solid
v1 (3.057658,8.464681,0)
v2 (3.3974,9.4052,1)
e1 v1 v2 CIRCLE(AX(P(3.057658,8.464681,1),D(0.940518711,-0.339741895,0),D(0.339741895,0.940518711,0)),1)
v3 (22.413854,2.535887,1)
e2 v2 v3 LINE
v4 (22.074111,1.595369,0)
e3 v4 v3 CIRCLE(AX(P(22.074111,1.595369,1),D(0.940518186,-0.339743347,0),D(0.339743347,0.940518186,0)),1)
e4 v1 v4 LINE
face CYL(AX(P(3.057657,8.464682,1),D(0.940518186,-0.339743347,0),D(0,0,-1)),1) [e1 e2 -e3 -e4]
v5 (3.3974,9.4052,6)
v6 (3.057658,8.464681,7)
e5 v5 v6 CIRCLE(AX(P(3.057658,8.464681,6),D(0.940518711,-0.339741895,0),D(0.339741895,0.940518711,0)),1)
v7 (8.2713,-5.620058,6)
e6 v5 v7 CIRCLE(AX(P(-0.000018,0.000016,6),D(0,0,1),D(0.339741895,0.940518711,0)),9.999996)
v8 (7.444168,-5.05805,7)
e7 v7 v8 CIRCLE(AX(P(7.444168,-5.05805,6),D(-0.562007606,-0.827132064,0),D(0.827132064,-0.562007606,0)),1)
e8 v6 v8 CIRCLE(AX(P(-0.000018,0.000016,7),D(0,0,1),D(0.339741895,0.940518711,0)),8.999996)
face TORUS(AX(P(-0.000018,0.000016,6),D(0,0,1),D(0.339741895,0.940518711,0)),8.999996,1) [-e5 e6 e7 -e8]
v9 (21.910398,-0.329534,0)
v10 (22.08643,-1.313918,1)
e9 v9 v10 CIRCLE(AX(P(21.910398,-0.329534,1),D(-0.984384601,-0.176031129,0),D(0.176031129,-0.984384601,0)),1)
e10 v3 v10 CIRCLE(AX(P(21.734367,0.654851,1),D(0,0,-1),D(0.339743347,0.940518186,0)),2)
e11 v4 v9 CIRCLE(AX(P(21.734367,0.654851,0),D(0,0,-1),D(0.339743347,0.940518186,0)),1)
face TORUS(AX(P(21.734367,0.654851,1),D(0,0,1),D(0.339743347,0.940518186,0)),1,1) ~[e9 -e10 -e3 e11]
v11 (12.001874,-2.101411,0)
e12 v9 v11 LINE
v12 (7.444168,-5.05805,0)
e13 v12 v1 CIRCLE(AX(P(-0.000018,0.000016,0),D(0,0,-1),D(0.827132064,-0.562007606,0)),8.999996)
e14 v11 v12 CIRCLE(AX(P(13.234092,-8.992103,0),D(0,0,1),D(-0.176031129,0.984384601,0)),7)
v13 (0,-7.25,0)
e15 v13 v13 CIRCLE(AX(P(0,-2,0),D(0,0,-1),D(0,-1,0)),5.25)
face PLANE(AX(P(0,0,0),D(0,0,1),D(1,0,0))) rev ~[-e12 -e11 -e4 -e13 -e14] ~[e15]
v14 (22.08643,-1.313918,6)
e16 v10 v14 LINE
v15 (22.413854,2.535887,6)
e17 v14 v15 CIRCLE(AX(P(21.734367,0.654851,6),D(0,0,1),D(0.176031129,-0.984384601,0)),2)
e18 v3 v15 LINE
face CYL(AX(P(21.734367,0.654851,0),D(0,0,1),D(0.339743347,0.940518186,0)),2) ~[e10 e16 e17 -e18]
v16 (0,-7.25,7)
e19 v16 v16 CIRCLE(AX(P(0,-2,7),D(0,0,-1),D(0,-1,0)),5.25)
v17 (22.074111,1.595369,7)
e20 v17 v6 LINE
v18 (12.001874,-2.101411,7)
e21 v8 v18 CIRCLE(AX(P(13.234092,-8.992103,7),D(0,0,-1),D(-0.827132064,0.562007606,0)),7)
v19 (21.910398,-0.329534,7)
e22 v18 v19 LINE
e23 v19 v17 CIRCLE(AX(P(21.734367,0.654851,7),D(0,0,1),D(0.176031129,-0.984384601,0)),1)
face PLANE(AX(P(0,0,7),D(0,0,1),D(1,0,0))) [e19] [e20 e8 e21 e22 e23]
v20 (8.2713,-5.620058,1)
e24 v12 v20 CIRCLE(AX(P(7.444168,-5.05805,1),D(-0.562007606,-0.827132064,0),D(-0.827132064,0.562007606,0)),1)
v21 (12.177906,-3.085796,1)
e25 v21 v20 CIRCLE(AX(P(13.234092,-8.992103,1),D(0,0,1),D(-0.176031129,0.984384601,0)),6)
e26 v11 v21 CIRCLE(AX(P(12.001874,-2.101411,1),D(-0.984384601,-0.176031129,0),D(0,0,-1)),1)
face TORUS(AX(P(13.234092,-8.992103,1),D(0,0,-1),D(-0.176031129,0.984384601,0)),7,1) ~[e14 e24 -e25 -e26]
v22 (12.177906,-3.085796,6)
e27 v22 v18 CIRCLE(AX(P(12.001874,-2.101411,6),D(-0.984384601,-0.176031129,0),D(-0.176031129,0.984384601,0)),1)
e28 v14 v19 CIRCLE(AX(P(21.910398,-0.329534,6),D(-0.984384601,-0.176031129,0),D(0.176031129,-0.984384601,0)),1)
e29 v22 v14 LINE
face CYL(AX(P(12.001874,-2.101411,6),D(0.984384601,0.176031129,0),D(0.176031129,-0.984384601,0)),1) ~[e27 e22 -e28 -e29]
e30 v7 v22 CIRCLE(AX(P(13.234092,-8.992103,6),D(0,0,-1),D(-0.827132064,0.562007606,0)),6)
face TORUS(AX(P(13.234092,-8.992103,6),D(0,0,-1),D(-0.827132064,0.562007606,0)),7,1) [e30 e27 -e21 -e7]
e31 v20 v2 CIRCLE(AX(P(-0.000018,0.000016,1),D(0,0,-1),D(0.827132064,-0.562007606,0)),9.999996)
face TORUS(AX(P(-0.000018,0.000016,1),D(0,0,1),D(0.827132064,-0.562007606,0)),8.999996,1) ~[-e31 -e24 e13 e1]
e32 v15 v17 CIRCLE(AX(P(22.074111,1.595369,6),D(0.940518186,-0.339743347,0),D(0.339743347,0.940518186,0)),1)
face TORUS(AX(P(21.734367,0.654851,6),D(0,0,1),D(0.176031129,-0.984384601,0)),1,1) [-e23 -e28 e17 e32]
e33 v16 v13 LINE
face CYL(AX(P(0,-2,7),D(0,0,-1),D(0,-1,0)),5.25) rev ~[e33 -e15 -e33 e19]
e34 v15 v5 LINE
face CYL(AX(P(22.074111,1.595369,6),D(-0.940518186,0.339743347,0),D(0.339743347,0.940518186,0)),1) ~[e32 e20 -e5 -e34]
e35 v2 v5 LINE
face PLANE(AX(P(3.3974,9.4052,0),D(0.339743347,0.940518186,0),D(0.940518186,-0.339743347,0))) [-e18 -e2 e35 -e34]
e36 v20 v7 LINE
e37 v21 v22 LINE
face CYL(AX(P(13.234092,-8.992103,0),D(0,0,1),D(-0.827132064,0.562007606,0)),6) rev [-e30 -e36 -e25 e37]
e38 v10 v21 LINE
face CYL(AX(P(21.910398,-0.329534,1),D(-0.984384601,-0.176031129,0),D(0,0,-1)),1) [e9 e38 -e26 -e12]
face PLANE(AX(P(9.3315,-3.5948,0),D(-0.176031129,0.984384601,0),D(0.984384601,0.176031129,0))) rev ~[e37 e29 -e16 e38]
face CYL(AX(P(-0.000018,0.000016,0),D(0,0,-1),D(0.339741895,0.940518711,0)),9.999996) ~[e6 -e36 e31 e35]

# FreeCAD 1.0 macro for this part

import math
import FreeCAD as App
import Part
import Sketcher

V = App.Vector
Q = App.Units.Quantity


def edges_at(feature, points):
    """Names of the edges that pass closest to the given points."""
    edges = feature.Shape.Edges
    near = lambda p: min(range(len(edges)), key=lambda i: edges[i].distToShape(Part.Vertex(*p))[0])
    return sorted({f"Edge{near(p) + 1}" for p in points})

doc = App.newDocument("Part")
body = doc.addObject("PartDesign::Body", "Body")

sketch1 = doc.addObject("Sketcher::SketchObject", "Sketch")
body.addObject(sketch1)
sketch1.AttachmentSupport = (doc.XY_Plane, [""])
sketch1.MapMode = "FlatFace"
sketch1.addGeometry(Part.LineSegment(V(29, 0, 0), V(3, 9, 0)), False)
sketch1.addGeometry(Part.ArcOfCircle(Part.Circle(V(0, 0, 0), V(0, 0, 1), 10), math.radians(70), math.radians(339)), False)
sketch1.addGeometry(Part.LineSegment(V(9, -4, 0), V(29, 0, 0)), False)
sketch1.addConstraint(Sketcher.Constraint("Tangent", 0, 2, 1, 1))
sketch1.addConstraint(Sketcher.Constraint("Coincident", 1, 2, 2, 1))
sketch1.addConstraint(Sketcher.Constraint("Coincident", 2, 2, 0, 1))
sketch1.addConstraint(Sketcher.Constraint("Coincident", 1, 3, -1, 1))
sketch1.addConstraint(Sketcher.Constraint("PointOnObject", 2, 2, -1))
sketch1.addConstraint(Sketcher.Constraint("Radius", 1, Q("10 mm")))
sketch1.addConstraint(Sketcher.Constraint("DistanceY", 1, 2, 0, 2, Q("13 mm")))
sketch1.addConstraint(Sketcher.Constraint("DistanceX", -1, 1, 2, 2, Q("29.434 mm")))
pad1 = doc.addObject("PartDesign::Pad", "Pad")
body.addObject(pad1)
pad1.Profile = sketch1
pad1.Length = 7

sketch2 = doc.addObject("Sketcher::SketchObject", "Sketch001")
body.addObject(sketch2)
sketch2.AttachmentSupport = (doc.XY_Plane, [""])
sketch2.MapMode = "FlatFace"
sketch2.AttachmentOffset = App.Placement(V(0, 0, 7), App.Rotation())
sketch2.addGeometry(Part.Circle(V(0, -2, 0), V(0, 0, 1), 5), False)
sketch2.addConstraint(Sketcher.Constraint("PointOnObject", 0, 3, -2))
sketch2.addConstraint(Sketcher.Constraint("Diameter", 0, Q("10.5 mm")))
sketch2.addConstraint(Sketcher.Constraint("DistanceY", 0, 3, -1, 1, Q("2 mm")))
doc.recompute()
hole = doc.addObject("PartDesign::Hole", "Hole")
body.addObject(hole)
hole.Profile = sketch2
hole.ThreadType = "None"
hole.Diameter = 10.5
hole.DepthType = "Dimension"
hole.Depth = 8
hole.DrillPoint = "Angled"
hole.DrillPointAngle = 118
doc.recompute()

fillet = doc.addObject("PartDesign::Fillet", "Fillet")
body.addObject(fillet)
fillet.Base = (hole, edges_at(hole, [(29.434, 0, 3.5)]))
fillet.Radius = 2
doc.recompute()

fillet2 = doc.addObject("PartDesign::Fillet", "Fillet001")
body.addObject(fillet2)
fillet2.Base = (fillet, edges_at(fillet, [(9.332, -3.595, 3.5)]))
fillet2.Radius = 6
doc.recompute()

fillet3 = doc.addObject("PartDesign::Fillet", "Fillet002")
body.addObject(fillet3)
fillet3.Base = (fillet2, edges_at(fillet2, [
    (-9.512, -3.086, 7),
    (17.132, -2.2, 7),
    (23.727, 0.485, 7),
    (12.906, 5.971, 7),
    (23.727, 0.485, 0),
    (12.906, 5.971, 0),
    (-9.512, -3.086, 0),
    (17.132, -2.2, 0),
]))
fillet3.Radius = 1

doc.recompute()
